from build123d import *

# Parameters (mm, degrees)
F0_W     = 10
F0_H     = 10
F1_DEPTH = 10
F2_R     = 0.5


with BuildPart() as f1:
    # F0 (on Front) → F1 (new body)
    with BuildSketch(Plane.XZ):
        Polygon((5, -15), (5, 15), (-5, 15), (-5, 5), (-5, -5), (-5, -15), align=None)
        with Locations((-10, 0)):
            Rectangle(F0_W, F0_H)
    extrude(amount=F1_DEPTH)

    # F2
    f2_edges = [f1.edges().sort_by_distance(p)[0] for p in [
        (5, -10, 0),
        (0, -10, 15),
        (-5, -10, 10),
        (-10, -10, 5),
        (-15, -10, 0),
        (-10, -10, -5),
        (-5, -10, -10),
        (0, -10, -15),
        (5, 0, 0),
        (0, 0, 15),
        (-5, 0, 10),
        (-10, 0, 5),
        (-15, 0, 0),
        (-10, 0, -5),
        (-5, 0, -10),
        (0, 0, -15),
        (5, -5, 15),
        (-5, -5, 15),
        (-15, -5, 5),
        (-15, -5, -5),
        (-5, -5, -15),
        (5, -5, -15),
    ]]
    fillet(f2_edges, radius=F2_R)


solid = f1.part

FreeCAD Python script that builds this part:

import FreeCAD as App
import Part
import Sketcher

V = App.Vector
Q = App.Units.Quantity


def edges_at(feature, points):
    """Names of the edges that pass closest to the given points."""
    edges = feature.Shape.Edges
    near = lambda p: min(range(len(edges)), key=lambda i: edges[i].distToShape(Part.Vertex(*p))[0])
    return sorted({f"Edge{near(p) + 1}" for p in points})

doc = App.newDocument("Part")
body = doc.addObject("PartDesign::Body", "Body")

# Sketch on XZ plane
sketch1 = body.newObject("Sketcher::SketchObject", "Sketch")
sketch1.AttachmentSupport = (doc.getObject("XZ_Plane"), [""])
sketch1.MapMode = "FlatFace"
sketch1.addGeometry([
    Part.LineSegment(V(5, -15, 0), V(5, 15, 0)),  # 0
    Part.LineSegment(V(5, 15, 0), V(-5, 15, 0)),  # 1
    Part.LineSegment(V(-5, 15, 0), V(-5, 5, 0)),  # 2
    Part.LineSegment(V(-5, 5, 0), V(-15, 5, 0)),  # 3
    Part.LineSegment(V(-15, 5, 0), V(-15, -5, 0)),  # 4
    Part.LineSegment(V(-15, -5, 0), V(-5, -5, 0)),  # 5
    Part.LineSegment(V(-5, -5, 0), V(-5, -15, 0)),  # 6
    Part.LineSegment(V(-5, -15, 0), V(5, -15, 0)),  # 7
], False)
sketch1.addConstraint([
    Sketcher.Constraint("Coincident", 0, 2, 1, 1),
    Sketcher.Constraint("Coincident", 1, 2, 2, 1),
    Sketcher.Constraint("Coincident", 2, 2, 3, 1),
    Sketcher.Constraint("Coincident", 3, 2, 4, 1),
    Sketcher.Constraint("Coincident", 4, 2, 5, 1),
    Sketcher.Constraint("Coincident", 5, 2, 6, 1),
    Sketcher.Constraint("Coincident", 6, 2, 7, 1),
    Sketcher.Constraint("Coincident", 7, 2, 0, 1),
    Sketcher.Constraint("Vertical", 0),
    Sketcher.Constraint("Horizontal", 1),
    Sketcher.Constraint("Vertical", 2),
    Sketcher.Constraint("Horizontal", 3),
    Sketcher.Constraint("Vertical", 4),
    Sketcher.Constraint("Horizontal", 5),
    Sketcher.Constraint("Vertical", 6),
    Sketcher.Constraint("Horizontal", 7),
    Sketcher.Constraint("Symmetric", 0, 2, 6, 2, -1, 1),
    Sketcher.Constraint("Symmetric", 2, 2, 5, 2, -1),
    Sketcher.Constraint("Equal", 1, 3),
    Sketcher.Constraint("Equal", 7, 2),
    Sketcher.Constraint("Equal", 2, 4),
    Sketcher.Constraint("DistanceX", 1, 2, 1, 1, Q("10 mm")),
])
pad1 = body.newObject("PartDesign::Pad", "Pad")
pad1.Profile = sketch1
pad1.Length = 10
doc.recompute()

fillet = body.newObject("PartDesign::Fillet", "Fillet")
fillet.Base = (pad1, edges_at(pad1, [
    (5, -10, 0),
    (0, -10, 15),
    (-5, -10, 10),
    (-10, -10, 5),
    (-15, -10, 0),
    (-10, -10, -5),
    (-5, -10, -10),
    (0, -10, -15),
    (5, 0, 0),
    (0, 0, 15),
    (-5, 0, 10),
    (-10, 0, 5),
    (-15, 0, 0),
    (-10, 0, -5),
    (-5, 0, -10),
    (0, 0, -15),
    (5, -5, 15),
    (-5, -5, 15),
    (-15, -5, 5),
    (-15, -5, -5),
    (-5, -5, -15),
    (5, -5, -15),
]))
fillet.Radius = 0.5

doc.recompute()
